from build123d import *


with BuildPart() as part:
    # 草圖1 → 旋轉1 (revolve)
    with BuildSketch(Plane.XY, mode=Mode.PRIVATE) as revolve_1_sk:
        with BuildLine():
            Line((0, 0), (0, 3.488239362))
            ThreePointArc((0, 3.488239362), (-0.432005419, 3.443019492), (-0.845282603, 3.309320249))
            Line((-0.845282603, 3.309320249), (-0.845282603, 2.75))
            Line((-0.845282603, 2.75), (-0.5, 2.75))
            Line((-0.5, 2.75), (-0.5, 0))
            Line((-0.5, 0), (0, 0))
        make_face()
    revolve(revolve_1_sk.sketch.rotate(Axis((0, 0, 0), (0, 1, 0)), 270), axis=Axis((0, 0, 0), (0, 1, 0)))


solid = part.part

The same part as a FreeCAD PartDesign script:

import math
import FreeCAD as App
import Part
import Sketcher
from FreeCAD import Vector

doc = App.newDocument("Part")
body = doc.addObject("PartDesign::Body", "Body")

sketch1 = body.newObject("Sketcher::SketchObject", "Sketch")
sketch1.AttachmentSupport = (doc.getObject("XY_Plane"), [""])
sketch1.MapMode = "FlatFace"
sketch1.addGeometry([
    Part.LineSegment(Vector(0, 0, 0), Vector(0, 3.488239, 0)),
    Part.ArcOfCircle(Part.Circle(Vector(0, 1.40206, 0), Vector(0, 0, 1), 2.086179), math.radians(90), math.radians(113.902541)),
    Part.LineSegment(Vector(-0.845283, 3.30932, 0), Vector(-0.845283, 2.75, 0)),
    Part.LineSegment(Vector(-0.845283, 2.75, 0), Vector(-0.5, 2.75, 0)),
    Part.LineSegment(Vector(-0.5, 2.75, 0), Vector(-0.5, 0, 0)),
    Part.LineSegment(Vector(-0.5, 0, 0), Vector(0, 0, 0)),
], False)
sketch1.addConstraint([
    Sketcher.Constraint("Coincident", 0, 2, 1, 1),
    Sketcher.Constraint("Coincident", 1, 2, 2, 1),
    Sketcher.Constraint("Coincident", 2, 2, 3, 1),
    Sketcher.Constraint("Coincident", 3, 2, 4, 1),
    Sketcher.Constraint("Coincident", 4, 2, 5, 1),
    Sketcher.Constraint("Coincident", 5, 2, 0, 1),
    Sketcher.Constraint("Vertical", 0),
    Sketcher.Constraint("Vertical", 2),
    Sketcher.Constraint("Horizontal", 3),
    Sketcher.Constraint("Vertical", 4),
    Sketcher.Constraint("Horizontal", 5),
    Sketcher.Constraint("Coincident", 5, 2, -1, 1),
    Sketcher.Constraint("PointOnObject", 1, 3, -2),
    Sketcher.Constraint("DistanceX", 5, 1, 5, 2, 0.5),
    Sketcher.Constraint("DistanceY", 4, 2, 4, 1, 2.75),
    Sketcher.Constraint("Radius", 1, 2.086179),
    Sketcher.Constraint("DistanceY", 0, 1, 0, 2, 3.488239),
    Sketcher.Constraint("DistanceY", 2, 2, 2, 1, 0.55932),
])
revolution = body.newObject("PartDesign::Revolution", "Revolution")
revolution.Profile = sketch1
revolution.ReferenceAxis = (sketch1, ["V_Axis"])
revolution.Angle = 360

doc.recompute()
